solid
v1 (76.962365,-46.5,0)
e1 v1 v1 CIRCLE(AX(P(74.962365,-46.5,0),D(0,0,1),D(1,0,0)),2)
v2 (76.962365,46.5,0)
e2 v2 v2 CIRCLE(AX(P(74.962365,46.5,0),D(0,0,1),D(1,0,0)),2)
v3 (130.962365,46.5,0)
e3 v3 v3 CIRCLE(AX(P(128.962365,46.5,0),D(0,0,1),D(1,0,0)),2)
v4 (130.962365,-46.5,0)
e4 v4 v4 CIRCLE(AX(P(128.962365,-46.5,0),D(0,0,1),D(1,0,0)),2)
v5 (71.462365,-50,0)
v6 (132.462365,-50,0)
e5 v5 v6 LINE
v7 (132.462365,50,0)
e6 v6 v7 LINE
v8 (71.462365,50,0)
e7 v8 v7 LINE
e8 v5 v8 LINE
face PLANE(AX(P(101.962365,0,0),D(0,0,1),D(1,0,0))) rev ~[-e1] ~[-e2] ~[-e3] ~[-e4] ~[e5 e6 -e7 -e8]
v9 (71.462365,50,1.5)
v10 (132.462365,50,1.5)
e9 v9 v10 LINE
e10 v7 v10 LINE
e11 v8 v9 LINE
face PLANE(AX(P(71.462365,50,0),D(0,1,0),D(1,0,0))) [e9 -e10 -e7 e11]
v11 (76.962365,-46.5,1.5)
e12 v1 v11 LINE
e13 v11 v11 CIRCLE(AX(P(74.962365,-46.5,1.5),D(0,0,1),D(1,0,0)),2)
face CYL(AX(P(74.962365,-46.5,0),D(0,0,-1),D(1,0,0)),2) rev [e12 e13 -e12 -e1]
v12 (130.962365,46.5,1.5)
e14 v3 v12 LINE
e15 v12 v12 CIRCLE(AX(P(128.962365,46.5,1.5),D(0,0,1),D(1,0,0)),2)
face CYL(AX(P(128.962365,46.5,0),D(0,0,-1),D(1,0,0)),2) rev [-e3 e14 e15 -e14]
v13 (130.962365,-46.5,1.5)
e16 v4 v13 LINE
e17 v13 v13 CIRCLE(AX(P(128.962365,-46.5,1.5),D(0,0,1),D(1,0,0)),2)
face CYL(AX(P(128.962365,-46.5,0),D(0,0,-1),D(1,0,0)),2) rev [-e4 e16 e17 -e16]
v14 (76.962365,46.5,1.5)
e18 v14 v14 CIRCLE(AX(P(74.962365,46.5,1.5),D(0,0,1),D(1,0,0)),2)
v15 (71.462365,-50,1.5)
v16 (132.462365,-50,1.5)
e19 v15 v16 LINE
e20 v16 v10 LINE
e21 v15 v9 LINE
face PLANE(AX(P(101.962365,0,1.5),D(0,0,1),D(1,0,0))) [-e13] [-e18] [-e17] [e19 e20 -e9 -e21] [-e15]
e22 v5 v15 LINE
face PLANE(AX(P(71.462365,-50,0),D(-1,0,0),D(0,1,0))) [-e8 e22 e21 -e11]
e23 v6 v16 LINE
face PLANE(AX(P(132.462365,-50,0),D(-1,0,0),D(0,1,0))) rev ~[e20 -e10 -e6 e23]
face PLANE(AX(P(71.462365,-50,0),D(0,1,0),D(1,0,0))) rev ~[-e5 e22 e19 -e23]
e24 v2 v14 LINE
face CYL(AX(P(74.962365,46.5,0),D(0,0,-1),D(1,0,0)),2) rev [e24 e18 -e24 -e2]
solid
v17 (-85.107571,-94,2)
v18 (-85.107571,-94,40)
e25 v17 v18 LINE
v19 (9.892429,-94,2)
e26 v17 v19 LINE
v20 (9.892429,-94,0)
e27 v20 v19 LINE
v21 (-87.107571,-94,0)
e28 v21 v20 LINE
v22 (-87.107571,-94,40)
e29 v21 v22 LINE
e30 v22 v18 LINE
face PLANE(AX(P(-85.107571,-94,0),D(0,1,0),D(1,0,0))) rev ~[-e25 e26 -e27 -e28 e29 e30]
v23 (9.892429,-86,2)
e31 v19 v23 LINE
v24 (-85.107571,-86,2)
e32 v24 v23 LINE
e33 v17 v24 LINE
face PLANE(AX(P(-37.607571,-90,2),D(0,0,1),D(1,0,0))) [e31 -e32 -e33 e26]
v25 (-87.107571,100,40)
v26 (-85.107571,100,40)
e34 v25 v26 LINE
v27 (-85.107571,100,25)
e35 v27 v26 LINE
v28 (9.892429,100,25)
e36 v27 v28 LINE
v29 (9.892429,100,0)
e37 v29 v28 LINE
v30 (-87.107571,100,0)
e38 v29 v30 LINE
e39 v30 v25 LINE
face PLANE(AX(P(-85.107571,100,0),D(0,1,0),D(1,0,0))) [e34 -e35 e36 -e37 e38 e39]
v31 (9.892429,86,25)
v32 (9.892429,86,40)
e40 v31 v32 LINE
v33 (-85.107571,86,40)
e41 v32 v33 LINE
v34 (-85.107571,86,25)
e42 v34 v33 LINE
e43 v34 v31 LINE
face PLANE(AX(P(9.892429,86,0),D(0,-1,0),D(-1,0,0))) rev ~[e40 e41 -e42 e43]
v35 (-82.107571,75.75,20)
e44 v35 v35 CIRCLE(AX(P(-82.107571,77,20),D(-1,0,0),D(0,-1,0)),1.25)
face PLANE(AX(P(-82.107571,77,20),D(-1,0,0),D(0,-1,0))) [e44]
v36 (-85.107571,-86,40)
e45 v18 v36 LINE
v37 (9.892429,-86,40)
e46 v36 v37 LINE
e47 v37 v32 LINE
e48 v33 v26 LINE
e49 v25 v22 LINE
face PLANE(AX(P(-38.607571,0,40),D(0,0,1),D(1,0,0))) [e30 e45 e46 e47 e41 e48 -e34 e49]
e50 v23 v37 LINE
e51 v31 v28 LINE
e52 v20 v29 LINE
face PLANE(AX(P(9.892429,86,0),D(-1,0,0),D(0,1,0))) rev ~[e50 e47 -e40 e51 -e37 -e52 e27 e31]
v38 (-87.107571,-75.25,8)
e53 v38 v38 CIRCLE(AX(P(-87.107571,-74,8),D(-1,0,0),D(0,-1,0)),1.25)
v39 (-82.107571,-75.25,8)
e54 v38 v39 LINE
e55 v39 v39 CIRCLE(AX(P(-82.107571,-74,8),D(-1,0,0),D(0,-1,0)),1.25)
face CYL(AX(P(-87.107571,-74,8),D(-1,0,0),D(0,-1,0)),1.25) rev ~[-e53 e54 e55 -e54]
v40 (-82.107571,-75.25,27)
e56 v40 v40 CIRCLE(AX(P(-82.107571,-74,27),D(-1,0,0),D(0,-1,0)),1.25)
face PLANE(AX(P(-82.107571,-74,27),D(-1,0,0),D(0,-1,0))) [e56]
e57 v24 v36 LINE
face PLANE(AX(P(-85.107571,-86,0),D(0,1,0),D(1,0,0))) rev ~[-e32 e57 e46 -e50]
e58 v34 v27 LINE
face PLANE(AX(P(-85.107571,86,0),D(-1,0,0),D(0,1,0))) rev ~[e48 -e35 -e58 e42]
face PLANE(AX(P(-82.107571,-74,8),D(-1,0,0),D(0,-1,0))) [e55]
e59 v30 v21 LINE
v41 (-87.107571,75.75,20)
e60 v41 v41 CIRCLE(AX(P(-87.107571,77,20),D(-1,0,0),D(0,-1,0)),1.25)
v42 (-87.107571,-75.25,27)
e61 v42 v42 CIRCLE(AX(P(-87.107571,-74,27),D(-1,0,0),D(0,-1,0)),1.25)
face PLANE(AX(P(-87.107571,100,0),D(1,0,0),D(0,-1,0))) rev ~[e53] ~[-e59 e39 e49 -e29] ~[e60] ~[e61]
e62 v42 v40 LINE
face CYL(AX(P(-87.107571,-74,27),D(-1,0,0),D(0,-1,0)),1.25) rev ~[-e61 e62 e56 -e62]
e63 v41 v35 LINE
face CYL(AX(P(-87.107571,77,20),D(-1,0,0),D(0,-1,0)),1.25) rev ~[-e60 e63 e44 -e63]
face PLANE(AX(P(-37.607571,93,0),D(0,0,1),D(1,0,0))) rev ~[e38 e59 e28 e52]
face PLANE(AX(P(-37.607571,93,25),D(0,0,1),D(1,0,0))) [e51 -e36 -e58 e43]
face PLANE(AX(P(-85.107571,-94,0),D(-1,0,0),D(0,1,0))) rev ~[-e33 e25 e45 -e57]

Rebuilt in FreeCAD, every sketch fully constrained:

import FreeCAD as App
import Part
import Sketcher

V = App.Vector
Q = App.Units.Quantity


def add_polygon(sketch, points):
    """Adds a closed chain of lines whose ends are joined by coincident constraints."""
    first, n = sketch.GeometryCount, len(points)
    for a, b in zip(points, points[1:] + points[:1]):
        sketch.addGeometry(Part.LineSegment(App.Vector(*a, 0), App.Vector(*b, 0)), False)
    for i in range(n):
        sketch.addConstraint(Sketcher.Constraint("Coincident", first + i, 2, first + (i + 1) % n, 1))

doc = App.newDocument("Part")
params = doc.addObject("Spreadsheet::Sheet", "Params")
for row, (alias, value) in enumerate([
    ("sketch1_width", "95 mm"),
    ("sketch1_width2", "2 mm"),
    ("sketch1_height", "172 mm"),
    ("sketch1_height2", "14 mm"),
    ("sketch1_height3", "194 mm"),
    ("pad1_length", "40 mm"),
    ("sketch2_width", "95 mm"),
    ("sketch2_height", "8 mm"),
    ("pad2_length", "2 mm"),
    ("sketch3_width", "95 mm"),
    ("sketch3_height", "14 mm"),
    ("pad3_length", "25 mm"),
    ("sketch4_diameter", "2.5 mm"),
    ("pocket1_length", "5 mm"),
    ("sketch5_diameter", "4 mm"),
    ("sketch5_width", "61 mm"),
    ("sketch5_height", "100 mm"),
    ("pad4_length", "1.5 mm"),
], start=1):
    params.set(f"A{row}", alias)
    params.set(f"B{row}", "=" + value)
    params.setAlias(f"B{row}", alias)

body = doc.addObject("PartDesign::Body", "Body")

sketch1 = body.newObject("Sketcher::SketchObject", "Sketch")
sketch1.AttachmentSupport = (doc.getObject("XY_Plane"), [""])
sketch1.MapMode = "FlatFace"
add_polygon(sketch1, [(9.9, -86), (9.9, 86), (-85.1, 86), (-85.1, 100), (-87.1, 100), (-87.1, -94), (-85.1, -94), (-85.1, -86)])
sketch1.addConstraint(Sketcher.Constraint("Vertical", 0))
sketch1.addConstraint(Sketcher.Constraint("Horizontal", 1))
sketch1.addConstraint(Sketcher.Constraint("Vertical", 2))
sketch1.addConstraint(Sketcher.Constraint("Horizontal", 3))
sketch1.addConstraint(Sketcher.Constraint("Vertical", 4))
sketch1.addConstraint(Sketcher.Constraint("Horizontal", 5))
sketch1.addConstraint(Sketcher.Constraint("Vertical", 6))
sketch1.addConstraint(Sketcher.Constraint("Horizontal", 7))
sketch1.addConstraint(Sketcher.Constraint("Symmetric", 1, 2, 6, 2, -1))
sketch1.addConstraint(Sketcher.Constraint("DistanceX", 1, 2, 1, 1, Q("95 mm")))
sketch1.addConstraint(Sketcher.Constraint("DistanceX", 3, 2, 3, 1, Q("2 mm")))
sketch1.addConstraint(Sketcher.Constraint("DistanceY", 0, 1, 0, 2, Q("172 mm")))
sketch1.addConstraint(Sketcher.Constraint("DistanceY", 2, 1, 2, 2, Q("14 mm")))
sketch1.addConstraint(Sketcher.Constraint("DistanceY", 4, 2, 4, 1, Q("194 mm")))
sketch1.addConstraint(Sketcher.Constraint("DistanceX", -1, 1, 0, 2, Q("9.892429 mm")))
sketch1.setExpression("Constraints[17]", "Params.sketch1_width")
sketch1.setExpression("Constraints[18]", "Params.sketch1_width2")
sketch1.setExpression("Constraints[19]", "Params.sketch1_height")
sketch1.setExpression("Constraints[20]", "Params.sketch1_height2")
sketch1.setExpression("Constraints[21]", "Params.sketch1_height3")
pad1 = body.newObject("PartDesign::Pad", "Pad")
pad1.Profile = sketch1
pad1.setExpression("Length", "Params.pad1_length")

sketch2 = body.newObject("Sketcher::SketchObject", "Sketch001")
sketch2.AttachmentSupport = (doc.getObject("XY_Plane"), [""])
sketch2.MapMode = "FlatFace"
add_polygon(sketch2, [(-85, -86), (-85, -94), (10, -94), (10, -86)])
sketch2.addConstraint(Sketcher.Constraint("Vertical", 0))
sketch2.addConstraint(Sketcher.Constraint("Horizontal", 1))
sketch2.addConstraint(Sketcher.Constraint("Vertical", 2))
sketch2.addConstraint(Sketcher.Constraint("Horizontal", 3))
sketch2.addConstraint(Sketcher.Constraint("DistanceX", 1, 1, 1, 2, Q("95 mm")))
sketch2.addConstraint(Sketcher.Constraint("DistanceY", 0, 2, 0, 1, Q("8 mm")))
sketch2.addConstraint(Sketcher.Constraint("DistanceY", 0, 2, -1, 1, Q("94 mm")))
sketch2.addConstraint(Sketcher.Constraint("DistanceX", 0, 2, -1, 1, Q("85.107571 mm")))
sketch2.setExpression("Constraints[8]", "Params.sketch2_width")
sketch2.setExpression("Constraints[9]", "Params.sketch2_height")
pad2 = body.newObject("PartDesign::Pad", "Pad001")
pad2.Profile = sketch2
pad2.setExpression("Length", "Params.pad2_length")

sketch3 = body.newObject("Sketcher::SketchObject", "Sketch002")
sketch3.AttachmentSupport = (doc.getObject("XY_Plane"), [""])
sketch3.MapMode = "FlatFace"
add_polygon(sketch3, [(-85, 100), (-85, 86), (10, 86), (10, 100)])
sketch3.addConstraint(Sketcher.Constraint("Vertical", 0))
sketch3.addConstraint(Sketcher.Constraint("Horizontal", 1))
sketch3.addConstraint(Sketcher.Constraint("Vertical", 2))
sketch3.addConstraint(Sketcher.Constraint("Horizontal", 3))
sketch3.addConstraint(Sketcher.Constraint("DistanceX", 1, 1, 1, 2, Q("95 mm")))
sketch3.addConstraint(Sketcher.Constraint("DistanceY", 0, 2, 0, 1, Q("14 mm")))
sketch3.addConstraint(Sketcher.Constraint("DistanceY", -1, 1, 0, 2, Q("86 mm")))
sketch3.addConstraint(Sketcher.Constraint("DistanceX", 0, 2, -1, 1, Q("85.107571 mm")))
sketch3.setExpression("Constraints[8]", "Params.sketch3_width")
sketch3.setExpression("Constraints[9]", "Params.sketch3_height")
pad3 = body.newObject("PartDesign::Pad", "Pad002")
pad3.Profile = sketch3
pad3.setExpression("Length", "Params.pad3_length")

sketch4 = body.newObject("Sketcher::SketchObject", "Sketch003")
sketch4.AttachmentSupport = (doc.getObject("YZ_Plane"), [""])
sketch4.MapMode = "FlatFace"
sketch4.AttachmentOffset = App.Placement(V(0, 0, -87.107571), App.Rotation())
sketch4.addGeometry(Part.Circle(V(-74, 8, 0), V(0, 0, 1), 1.2), False)
sketch4.addGeometry(Part.Circle(V(-74, 27, 0), V(0, 0, 1), 1.2), False)
sketch4.addGeometry(Part.Circle(V(77, 20, 0), V(0, 0, 1), 1.2), False)
sketch4.addConstraint(Sketcher.Constraint("Equal", 0, 1))
sketch4.addConstraint(Sketcher.Constraint("Equal", 1, 2))
sketch4.addConstraint(Sketcher.Constraint("Vertical", 0, 3, 1, 3))
sketch4.addConstraint(Sketcher.Constraint("Diameter", 0, Q("2.5 mm")))
sketch4.addConstraint(Sketcher.Constraint("DistanceX", 0, 3, -1, 1, Q("74 mm")))
sketch4.addConstraint(Sketcher.Constraint("DistanceY", -1, 1, 0, 3, Q("8 mm")))
sketch4.addConstraint(Sketcher.Constraint("DistanceY", -1, 1, 1, 3, Q("27 mm")))
sketch4.addConstraint(Sketcher.Constraint("DistanceX", -1, 1, 2, 3, Q("77 mm")))
sketch4.addConstraint(Sketcher.Constraint("DistanceY", -1, 1, 2, 3, Q("20 mm")))
sketch4.setExpression("Constraints[3]", "Params.sketch4_diameter")
pocket1 = body.newObject("PartDesign::Pocket", "Pocket")
pocket1.Profile = sketch4
pocket1.setExpression("Length", "Params.pocket1_length")
pocket1.Reversed = True
body2 = doc.addObject("PartDesign::Body", "Body001")

sketch5 = body2.newObject("Sketcher::SketchObject", "Sketch004")
sketch5.AttachmentSupport = (doc.getObject("XY_Plane001"), [""])
sketch5.MapMode = "FlatFace"
add_polygon(sketch5, [(71.5, 50), (71.5, -50), (132.5, -50), (132.5, 50)])
sketch5.addGeometry(Part.Circle(V(75, -46.5, 0), V(0, 0, 1), 2), False)
sketch5.addGeometry(Part.Circle(V(129, -46.5, 0), V(0, 0, 1), 2), False)
sketch5.addGeometry(Part.Circle(V(75, 46.5, 0), V(0, 0, 1), 2), False)
sketch5.addGeometry(Part.Circle(V(129, 46.5, 0), V(0, 0, 1), 2), False)
sketch5.addConstraint(Sketcher.Constraint("Vertical", 0))
sketch5.addConstraint(Sketcher.Constraint("Horizontal", 1))
sketch5.addConstraint(Sketcher.Constraint("Vertical", 2))
sketch5.addConstraint(Sketcher.Constraint("Horizontal", 3))
sketch5.addConstraint(Sketcher.Constraint("Equal", 4, 5))
sketch5.addConstraint(Sketcher.Constraint("Equal", 5, 6))
sketch5.addConstraint(Sketcher.Constraint("Equal", 6, 7))
sketch5.addConstraint(Sketcher.Constraint("Symmetric", 4, 3, 6, 3, -1))
sketch5.addConstraint(Sketcher.Constraint("Symmetric", 5, 3, 7, 3, -1))
sketch5.addConstraint(Sketcher.Constraint("Horizontal", 4, 3, 5, 3))
sketch5.addConstraint(Sketcher.Constraint("Diameter", 4, Q("4 mm")))
sketch5.addConstraint(Sketcher.Constraint("DistanceX", 1, 1, 1, 2, Q("61 mm")))
sketch5.addConstraint(Sketcher.Constraint("DistanceY", 0, 2, 0, 1, Q("100 mm")))
sketch5.addConstraint(Sketcher.Constraint("DistanceY", 0, 2, -1, 1, Q("50 mm")))
sketch5.addConstraint(Sketcher.Constraint("DistanceX", 4, 3, 5, 3, Q("54 mm")))
sketch5.addConstraint(Sketcher.Constraint("DistanceY", 4, 3, 6, 3, Q("93 mm")))
sketch5.addConstraint(Sketcher.Constraint("DistanceX", 0, 2, 4, 3, Q("3.5 mm")))
sketch5.addConstraint(Sketcher.Constraint("DistanceX", -1, 1, 4, 3, Q("74.962365 mm")))
sketch5.setExpression("Constraints[14]", "Params.sketch5_diameter")
sketch5.setExpression("Constraints[15]", "Params.sketch5_width")
sketch5.setExpression("Constraints[16]", "Params.sketch5_height")
pad4 = body2.newObject("PartDesign::Pad", "Pad003")
pad4.Profile = sketch5
pad4.setExpression("Length", "Params.pad4_length")

doc.recompute()
